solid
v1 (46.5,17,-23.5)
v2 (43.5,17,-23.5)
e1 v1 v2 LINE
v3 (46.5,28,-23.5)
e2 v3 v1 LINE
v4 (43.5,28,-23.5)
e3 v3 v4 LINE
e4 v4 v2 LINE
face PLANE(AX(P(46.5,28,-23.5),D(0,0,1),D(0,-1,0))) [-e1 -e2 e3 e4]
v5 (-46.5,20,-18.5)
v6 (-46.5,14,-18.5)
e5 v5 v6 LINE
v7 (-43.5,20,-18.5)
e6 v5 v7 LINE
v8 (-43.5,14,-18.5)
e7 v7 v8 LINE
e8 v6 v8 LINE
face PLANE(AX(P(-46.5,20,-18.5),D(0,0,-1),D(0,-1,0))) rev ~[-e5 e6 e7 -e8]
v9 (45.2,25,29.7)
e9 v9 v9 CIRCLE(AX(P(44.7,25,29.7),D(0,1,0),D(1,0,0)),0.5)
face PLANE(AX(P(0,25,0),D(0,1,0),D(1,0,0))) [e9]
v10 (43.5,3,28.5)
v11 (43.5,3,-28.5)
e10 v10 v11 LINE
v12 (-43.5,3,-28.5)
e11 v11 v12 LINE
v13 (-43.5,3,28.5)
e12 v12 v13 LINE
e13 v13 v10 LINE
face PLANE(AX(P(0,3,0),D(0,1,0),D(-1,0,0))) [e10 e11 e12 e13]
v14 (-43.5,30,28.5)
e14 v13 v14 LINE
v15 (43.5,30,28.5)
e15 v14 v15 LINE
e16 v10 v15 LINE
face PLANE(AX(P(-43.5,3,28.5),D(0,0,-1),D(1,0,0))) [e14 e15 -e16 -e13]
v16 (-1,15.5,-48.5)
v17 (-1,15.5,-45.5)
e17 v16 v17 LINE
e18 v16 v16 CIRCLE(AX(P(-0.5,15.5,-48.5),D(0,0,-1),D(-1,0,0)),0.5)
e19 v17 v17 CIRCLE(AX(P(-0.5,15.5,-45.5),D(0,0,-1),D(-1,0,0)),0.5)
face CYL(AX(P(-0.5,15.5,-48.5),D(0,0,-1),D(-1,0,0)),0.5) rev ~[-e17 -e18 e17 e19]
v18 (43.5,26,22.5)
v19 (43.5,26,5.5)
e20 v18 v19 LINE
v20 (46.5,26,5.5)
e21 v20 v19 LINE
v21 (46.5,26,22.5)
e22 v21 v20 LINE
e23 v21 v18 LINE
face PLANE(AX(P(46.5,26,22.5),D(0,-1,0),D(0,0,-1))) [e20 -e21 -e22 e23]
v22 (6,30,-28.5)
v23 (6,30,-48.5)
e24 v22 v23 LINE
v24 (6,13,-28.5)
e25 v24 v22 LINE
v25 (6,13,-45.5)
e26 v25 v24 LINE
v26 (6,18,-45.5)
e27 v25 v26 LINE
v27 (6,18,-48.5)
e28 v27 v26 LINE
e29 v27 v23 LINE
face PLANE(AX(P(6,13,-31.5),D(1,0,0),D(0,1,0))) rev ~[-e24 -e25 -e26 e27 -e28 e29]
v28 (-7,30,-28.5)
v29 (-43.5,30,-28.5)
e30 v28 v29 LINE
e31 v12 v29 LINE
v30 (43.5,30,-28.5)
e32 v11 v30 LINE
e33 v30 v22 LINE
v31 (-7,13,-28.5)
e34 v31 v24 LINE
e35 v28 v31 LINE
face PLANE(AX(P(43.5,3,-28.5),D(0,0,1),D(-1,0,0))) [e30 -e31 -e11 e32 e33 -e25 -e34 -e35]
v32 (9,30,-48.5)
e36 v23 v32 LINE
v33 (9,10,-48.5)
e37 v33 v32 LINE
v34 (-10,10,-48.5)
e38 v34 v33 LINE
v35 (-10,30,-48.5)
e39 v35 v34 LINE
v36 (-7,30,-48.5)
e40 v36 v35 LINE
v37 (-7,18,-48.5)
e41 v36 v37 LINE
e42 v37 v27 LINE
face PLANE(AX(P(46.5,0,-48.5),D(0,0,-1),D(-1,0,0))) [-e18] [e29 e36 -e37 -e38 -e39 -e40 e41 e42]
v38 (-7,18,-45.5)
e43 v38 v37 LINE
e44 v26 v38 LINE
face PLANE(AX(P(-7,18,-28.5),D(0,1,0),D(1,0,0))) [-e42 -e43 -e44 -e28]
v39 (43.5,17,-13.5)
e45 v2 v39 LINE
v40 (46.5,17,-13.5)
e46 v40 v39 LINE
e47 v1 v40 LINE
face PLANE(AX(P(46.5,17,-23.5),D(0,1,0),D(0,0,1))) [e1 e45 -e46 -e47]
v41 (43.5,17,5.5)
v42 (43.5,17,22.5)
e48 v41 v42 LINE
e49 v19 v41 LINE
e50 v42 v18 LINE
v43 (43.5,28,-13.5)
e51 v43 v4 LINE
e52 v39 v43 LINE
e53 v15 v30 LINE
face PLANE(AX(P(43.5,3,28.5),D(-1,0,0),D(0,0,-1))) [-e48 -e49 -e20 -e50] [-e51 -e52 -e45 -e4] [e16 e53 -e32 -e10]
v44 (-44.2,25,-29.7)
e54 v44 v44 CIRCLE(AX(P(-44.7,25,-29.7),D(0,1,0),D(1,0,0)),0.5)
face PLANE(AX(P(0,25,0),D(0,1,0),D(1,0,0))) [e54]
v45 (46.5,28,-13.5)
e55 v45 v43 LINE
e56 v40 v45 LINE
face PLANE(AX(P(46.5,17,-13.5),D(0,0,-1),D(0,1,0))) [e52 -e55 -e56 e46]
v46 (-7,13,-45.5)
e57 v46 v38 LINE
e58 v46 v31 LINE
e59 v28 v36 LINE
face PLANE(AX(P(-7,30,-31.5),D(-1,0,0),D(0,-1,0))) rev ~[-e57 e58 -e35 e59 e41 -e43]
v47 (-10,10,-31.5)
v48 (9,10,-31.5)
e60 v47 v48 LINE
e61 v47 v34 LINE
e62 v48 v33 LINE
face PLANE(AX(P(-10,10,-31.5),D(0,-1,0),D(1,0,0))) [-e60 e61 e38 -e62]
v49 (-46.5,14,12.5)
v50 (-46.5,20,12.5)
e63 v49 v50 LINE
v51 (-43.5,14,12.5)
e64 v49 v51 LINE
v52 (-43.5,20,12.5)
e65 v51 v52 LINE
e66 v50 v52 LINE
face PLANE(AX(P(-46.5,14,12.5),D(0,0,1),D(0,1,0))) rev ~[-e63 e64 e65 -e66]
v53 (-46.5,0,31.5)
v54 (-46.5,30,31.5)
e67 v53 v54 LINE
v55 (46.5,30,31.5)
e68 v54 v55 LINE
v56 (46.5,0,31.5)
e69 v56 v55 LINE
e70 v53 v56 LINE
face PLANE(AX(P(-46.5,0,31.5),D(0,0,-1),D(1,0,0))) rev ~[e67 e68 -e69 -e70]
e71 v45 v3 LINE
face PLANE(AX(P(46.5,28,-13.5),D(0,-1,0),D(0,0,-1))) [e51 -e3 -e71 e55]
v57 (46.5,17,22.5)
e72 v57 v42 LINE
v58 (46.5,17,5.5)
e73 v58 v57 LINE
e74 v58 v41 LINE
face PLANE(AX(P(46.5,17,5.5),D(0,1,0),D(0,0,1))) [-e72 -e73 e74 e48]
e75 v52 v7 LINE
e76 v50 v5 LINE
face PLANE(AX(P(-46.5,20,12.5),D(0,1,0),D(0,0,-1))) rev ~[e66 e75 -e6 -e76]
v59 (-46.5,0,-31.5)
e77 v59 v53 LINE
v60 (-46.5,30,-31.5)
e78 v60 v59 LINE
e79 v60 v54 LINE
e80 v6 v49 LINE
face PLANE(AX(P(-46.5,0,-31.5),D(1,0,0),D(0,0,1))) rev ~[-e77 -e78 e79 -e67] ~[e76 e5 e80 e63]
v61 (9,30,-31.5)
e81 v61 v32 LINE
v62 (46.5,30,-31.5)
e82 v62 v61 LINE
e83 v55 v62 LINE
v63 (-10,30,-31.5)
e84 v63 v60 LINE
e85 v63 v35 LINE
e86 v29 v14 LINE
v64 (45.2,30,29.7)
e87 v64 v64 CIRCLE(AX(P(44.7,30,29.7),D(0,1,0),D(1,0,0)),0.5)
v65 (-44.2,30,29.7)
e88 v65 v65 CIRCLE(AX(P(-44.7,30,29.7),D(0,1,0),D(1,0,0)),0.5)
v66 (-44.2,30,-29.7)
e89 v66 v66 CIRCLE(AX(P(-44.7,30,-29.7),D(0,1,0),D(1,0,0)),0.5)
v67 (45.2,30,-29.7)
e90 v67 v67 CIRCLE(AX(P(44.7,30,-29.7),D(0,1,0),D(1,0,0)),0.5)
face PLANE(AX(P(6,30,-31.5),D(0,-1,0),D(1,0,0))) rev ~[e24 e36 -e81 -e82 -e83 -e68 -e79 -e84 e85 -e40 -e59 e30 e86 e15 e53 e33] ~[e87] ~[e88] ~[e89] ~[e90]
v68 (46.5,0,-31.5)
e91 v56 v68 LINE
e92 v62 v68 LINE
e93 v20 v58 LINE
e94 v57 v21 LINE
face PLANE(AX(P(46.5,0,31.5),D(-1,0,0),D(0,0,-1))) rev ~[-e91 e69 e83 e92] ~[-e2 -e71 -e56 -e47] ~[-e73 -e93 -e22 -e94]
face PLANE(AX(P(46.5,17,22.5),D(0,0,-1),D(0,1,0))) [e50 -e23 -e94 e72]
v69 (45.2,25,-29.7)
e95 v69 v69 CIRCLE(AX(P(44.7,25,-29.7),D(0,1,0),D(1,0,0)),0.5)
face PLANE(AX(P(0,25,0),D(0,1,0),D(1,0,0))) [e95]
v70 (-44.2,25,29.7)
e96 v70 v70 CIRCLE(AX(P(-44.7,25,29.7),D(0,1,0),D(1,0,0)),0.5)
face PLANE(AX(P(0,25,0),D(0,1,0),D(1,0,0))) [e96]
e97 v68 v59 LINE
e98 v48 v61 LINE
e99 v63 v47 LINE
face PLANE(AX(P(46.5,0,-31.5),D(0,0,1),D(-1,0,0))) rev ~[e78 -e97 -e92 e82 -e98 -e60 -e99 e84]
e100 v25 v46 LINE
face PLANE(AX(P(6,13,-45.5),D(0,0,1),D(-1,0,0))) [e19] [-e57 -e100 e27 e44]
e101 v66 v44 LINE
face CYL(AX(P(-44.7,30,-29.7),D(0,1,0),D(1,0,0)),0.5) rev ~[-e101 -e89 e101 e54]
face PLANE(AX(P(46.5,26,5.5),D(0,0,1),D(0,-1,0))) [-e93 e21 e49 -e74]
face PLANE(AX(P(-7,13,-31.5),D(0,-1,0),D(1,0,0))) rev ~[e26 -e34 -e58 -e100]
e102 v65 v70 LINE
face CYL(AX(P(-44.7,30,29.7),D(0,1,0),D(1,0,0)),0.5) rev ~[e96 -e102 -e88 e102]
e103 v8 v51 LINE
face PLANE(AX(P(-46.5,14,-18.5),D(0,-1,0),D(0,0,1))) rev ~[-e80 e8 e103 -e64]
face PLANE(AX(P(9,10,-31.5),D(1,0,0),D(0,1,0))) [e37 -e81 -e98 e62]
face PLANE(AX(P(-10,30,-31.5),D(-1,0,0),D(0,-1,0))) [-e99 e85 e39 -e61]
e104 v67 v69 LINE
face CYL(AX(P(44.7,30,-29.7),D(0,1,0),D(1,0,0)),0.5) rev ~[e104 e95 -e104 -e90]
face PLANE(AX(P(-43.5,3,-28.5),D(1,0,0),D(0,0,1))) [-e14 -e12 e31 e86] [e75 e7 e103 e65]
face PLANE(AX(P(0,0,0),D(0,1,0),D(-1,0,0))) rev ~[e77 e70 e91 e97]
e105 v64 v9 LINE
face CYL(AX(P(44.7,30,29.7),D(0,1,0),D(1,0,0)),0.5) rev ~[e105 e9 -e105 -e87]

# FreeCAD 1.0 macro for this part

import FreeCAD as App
import Part
import Sketcher
Q = App.Units.Quantity

doc = App.newDocument("Part")
body = doc.addObject("PartDesign::Body", "Body")

# Sketch on XZ plane
sketch1 = body.newObject("Sketcher::SketchObject", "Sketch")
sketch1.AttachmentSupport = (doc.getObject("XZ_Plane"), [""])
sketch1.MapMode = "FlatFace"
sketch1.addGeometry(Part.LineSegment(App.Vector(-46, -32, 0), App.Vector(-46, 32, 0)), False)
sketch1.addGeometry(Part.LineSegment(App.Vector(-46, 32, 0), App.Vector(46, 32, 0)), False)
sketch1.addGeometry(Part.LineSegment(App.Vector(46, 32, 0), App.Vector(46, -32, 0)), False)
sketch1.addGeometry(Part.LineSegment(App.Vector(46, -32, 0), App.Vector(-46, -32, 0)), False)
sketch1.addConstraint(Sketcher.Constraint("Coincident", 0, 2, 1, 1))
sketch1.addConstraint(Sketcher.Constraint("Coincident", 1, 2, 2, 1))
sketch1.addConstraint(Sketcher.Constraint("Coincident", 2, 2, 3, 1))
sketch1.addConstraint(Sketcher.Constraint("Coincident", 3, 2, 0, 1))
sketch1.addConstraint(Sketcher.Constraint("Vertical", 0))
sketch1.addConstraint(Sketcher.Constraint("Horizontal", 1))
sketch1.addConstraint(Sketcher.Constraint("Vertical", 2))
sketch1.addConstraint(Sketcher.Constraint("Horizontal", 3))
sketch1.addConstraint(Sketcher.Constraint("Symmetric", 0, 2, 2, 2, -1, 1))
sketch1.addConstraint(Sketcher.Constraint("DistanceX", 1, 1, 1, 2, Q("93 mm")))
sketch1.addConstraint(Sketcher.Constraint("DistanceY", 0, 1, 0, 2, Q("63 mm")))
pad1 = body.newObject("PartDesign::Pad", "Pad")
pad1.Profile = sketch1
pad1.Length = 3
pad1.Reversed = True

# Sketch on XZ plane
sketch2 = body.newObject("Sketcher::SketchObject", "Sketch001")
sketch2.AttachmentSupport = (doc.getObject("XZ_Plane"), [""])
sketch2.MapMode = "FlatFace"
sketch2.AttachmentOffset = App.Placement(App.Vector(0, 0, -3), App.Rotation())
sketch2.addGeometry(Part.LineSegment(App.Vector(-46, 32, 0), App.Vector(46, 32, 0)), False)
sketch2.addGeometry(Part.LineSegment(App.Vector(46, 32, 0), App.Vector(46, -32, 0)), False)
sketch2.addGeometry(Part.LineSegment(App.Vector(46, -32, 0), App.Vector(-46, -32, 0)), False)
sketch2.addGeometry(Part.LineSegment(App.Vector(-46, -32, 0), App.Vector(-46, 32, 0)), False)
sketch2.addGeometry(Part.LineSegment(App.Vector(44, 28, 0), App.Vector(-44, 28, 0)), False)
sketch2.addGeometry(Part.LineSegment(App.Vector(-44, 28, 0), App.Vector(-44, -28, 0)), False)
sketch2.addGeometry(Part.LineSegment(App.Vector(-44, -28, 0), App.Vector(44, -28, 0)), False)
sketch2.addGeometry(Part.LineSegment(App.Vector(44, -28, 0), App.Vector(44, 28, 0)), False)
sketch2.addConstraint(Sketcher.Constraint("Coincident", 0, 2, 1, 1))
sketch2.addConstraint(Sketcher.Constraint("Coincident", 1, 2, 2, 1))
sketch2.addConstraint(Sketcher.Constraint("Coincident", 2, 2, 3, 1))
sketch2.addConstraint(Sketcher.Constraint("Coincident", 3, 2, 0, 1))
sketch2.addConstraint(Sketcher.Constraint("Coincident", 4, 2, 5, 1))
sketch2.addConstraint(Sketcher.Constraint("Coincident", 5, 2, 6, 1))
sketch2.addConstraint(Sketcher.Constraint("Coincident", 6, 2, 7, 1))
sketch2.addConstraint(Sketcher.Constraint("Coincident", 7, 2, 4, 1))
sketch2.addConstraint(Sketcher.Constraint("Horizontal", 0))
sketch2.addConstraint(Sketcher.Constraint("Vertical", 1))
sketch2.addConstraint(Sketcher.Constraint("Horizontal", 2))
sketch2.addConstraint(Sketcher.Constraint("Vertical", 3))
sketch2.addConstraint(Sketcher.Constraint("Horizontal", 4))
sketch2.addConstraint(Sketcher.Constraint("Vertical", 5))
sketch2.addConstraint(Sketcher.Constraint("Horizontal", 6))
sketch2.addConstraint(Sketcher.Constraint("Vertical", 7))
sketch2.addConstraint(Sketcher.Constraint("Symmetric", 0, 2, 2, 2, -1, 1))
sketch2.addConstraint(Sketcher.Constraint("Symmetric", 4, 2, 6, 2, -1, 1))
sketch2.addConstraint(Sketcher.Constraint("DistanceX", 4, 2, 4, 1, Q("87 mm")))
sketch2.addConstraint(Sketcher.Constraint("DistanceY", 5, 2, 5, 1, Q("57 mm")))
sketch2.addConstraint(Sketcher.Constraint("DistanceX", 0, 1, 0, 2, Q("93 mm")))
sketch2.addConstraint(Sketcher.Constraint("DistanceY", 1, 2, 1, 1, Q("63 mm")))
pad2 = body.newObject("PartDesign::Pad", "Pad001")
pad2.Profile = sketch2
pad2.Length = 27
pad2.Reversed = True

# Sketch on XZ plane
sketch3 = body.newObject("Sketcher::SketchObject", "Sketch002")
sketch3.AttachmentSupport = (doc.getObject("XZ_Plane"), [""])
sketch3.MapMode = "FlatFace"
sketch3.AttachmentOffset = App.Placement(App.Vector(0, 0, -30), App.Rotation())
sketch3.addGeometry(Part.Circle(App.Vector(-44.7, -29.7, 0), App.Vector(0, 0, 1), 0.5), False)
sketch3.addGeometry(Part.Circle(App.Vector(-44.7, 29.7, 0), App.Vector(0, 0, 1), 0.5), False)
sketch3.addGeometry(Part.Circle(App.Vector(44.7, 29.7, 0), App.Vector(0, 0, 1), 0.5), False)
sketch3.addGeometry(Part.Circle(App.Vector(44.7, -29.7, 0), App.Vector(0, 0, 1), 0.5), False)
sketch3.addConstraint(Sketcher.Constraint("Equal", 0, 1))
sketch3.addConstraint(Sketcher.Constraint("Equal", 1, 2))
sketch3.addConstraint(Sketcher.Constraint("Equal", 2, 3))
sketch3.addConstraint(Sketcher.Constraint("Symmetric", 0, 3, 2, 3, -1, 1))
sketch3.addConstraint(Sketcher.Constraint("Symmetric", 1, 3, 3, 3, -1, 1))
sketch3.addConstraint(Sketcher.Constraint("Symmetric", 1, 3, 2, 3, -2))
sketch3.addConstraint(Sketcher.Constraint("Diameter", 0, Q("1 mm")))
sketch3.addConstraint(Sketcher.Constraint("DistanceX", 0, 3, -1, 1, Q("44.7 mm")))
sketch3.addConstraint(Sketcher.Constraint("DistanceY", 0, 3, -1, 1, Q("29.7 mm")))
pocket1 = body.newObject("PartDesign::Pocket", "Pocket")
pocket1.Profile = sketch3
pocket1.Length = 5
pocket1.Reversed = True

# Sketch on YZ plane
sketch4 = body.newObject("Sketcher::SketchObject", "Sketch003")
sketch4.AttachmentSupport = (doc.getObject("YZ_Plane"), [""])
sketch4.MapMode = "FlatFace"
sketch4.AttachmentOffset = App.Placement(App.Vector(0, 0, -46.5), App.Rotation())
sketch4.addGeometry(Part.LineSegment(App.Vector(20, -18, 0), App.Vector(14, -18, 0)), False)
sketch4.addGeometry(Part.LineSegment(App.Vector(14, -18, 0), App.Vector(14, 12, 0)), False)
sketch4.addGeometry(Part.LineSegment(App.Vector(14, 12, 0), App.Vector(20, 12, 0)), False)
sketch4.addGeometry(Part.LineSegment(App.Vector(20, 12, 0), App.Vector(20, -18, 0)), False)
sketch4.addConstraint(Sketcher.Constraint("Coincident", 0, 2, 1, 1))
sketch4.addConstraint(Sketcher.Constraint("Coincident", 1, 2, 2, 1))
sketch4.addConstraint(Sketcher.Constraint("Coincident", 2, 2, 3, 1))
sketch4.addConstraint(Sketcher.Constraint("Coincident", 3, 2, 0, 1))
sketch4.addConstraint(Sketcher.Constraint("Horizontal", 0))
sketch4.addConstraint(Sketcher.Constraint("Vertical", 1))
sketch4.addConstraint(Sketcher.Constraint("Horizontal", 2))
sketch4.addConstraint(Sketcher.Constraint("Vertical", 3))
sketch4.addConstraint(Sketcher.Constraint("DistanceX", 0, 2, 0, 1, Q("6 mm")))
sketch4.addConstraint(Sketcher.Constraint("DistanceY", 1, 1, 1, 2, Q("31 mm")))
sketch4.addConstraint(Sketcher.Constraint("DistanceX", -1, 1, 0, 2, Q("14 mm")))
sketch4.addConstraint(Sketcher.Constraint("DistanceY", 0, 2, -1, 1, Q("18.5 mm")))
pocket2 = body.newObject("PartDesign::Pocket", "Pocket001")
pocket2.Profile = sketch4
pocket2.Length = 3
pocket2.Reversed = True

# Sketch on YZ plane
sketch5 = body.newObject("Sketcher::SketchObject", "Sketch004")
sketch5.AttachmentSupport = (doc.getObject("YZ_Plane"), [""])
sketch5.MapMode = "FlatFace"
sketch5.AttachmentOffset = App.Placement(App.Vector(0, 0, 46.5), App.Rotation())
sketch5.addGeometry(Part.LineSegment(App.Vector(28, -24, 0), App.Vector(28, -14, 0)), False)
sketch5.addGeometry(Part.LineSegment(App.Vector(28, -14, 0), App.Vector(17, -14, 0)), False)
sketch5.addGeometry(Part.LineSegment(App.Vector(17, -14, 0), App.Vector(17, -24, 0)), False)
sketch5.addGeometry(Part.LineSegment(App.Vector(17, -24, 0), App.Vector(28, -24, 0)), False)
sketch5.addGeometry(Part.LineSegment(App.Vector(26, 6, 0), App.Vector(26, 22, 0)), False)
sketch5.addGeometry(Part.LineSegment(App.Vector(26, 22, 0), App.Vector(17, 22, 0)), False)
sketch5.addGeometry(Part.LineSegment(App.Vector(17, 22, 0), App.Vector(17, 6, 0)), False)
sketch5.addGeometry(Part.LineSegment(App.Vector(17, 6, 0), App.Vector(26, 6, 0)), False)
sketch5.addConstraint(Sketcher.Constraint("Coincident", 0, 2, 1, 1))
sketch5.addConstraint(Sketcher.Constraint("Coincident", 1, 2, 2, 1))
sketch5.addConstraint(Sketcher.Constraint("Coincident", 2, 2, 3, 1))
sketch5.addConstraint(Sketcher.Constraint("Coincident", 3, 2, 0, 1))
sketch5.addConstraint(Sketcher.Constraint("Coincident", 4, 2, 5, 1))
sketch5.addConstraint(Sketcher.Constraint("Coincident", 5, 2, 6, 1))
sketch5.addConstraint(Sketcher.Constraint("Coincident", 6, 2, 7, 1))
sketch5.addConstraint(Sketcher.Constraint("Coincident", 7, 2, 4, 1))
sketch5.addConstraint(Sketcher.Constraint("Vertical", 0))
sketch5.addConstraint(Sketcher.Constraint("Horizontal", 1))
sketch5.addConstraint(Sketcher.Constraint("Vertical", 2))
sketch5.addConstraint(Sketcher.Constraint("Horizontal", 3))
sketch5.addConstraint(Sketcher.Constraint("Vertical", 4))
sketch5.addConstraint(Sketcher.Constraint("Horizontal", 5))
sketch5.addConstraint(Sketcher.Constraint("Vertical", 6))
sketch5.addConstraint(Sketcher.Constraint("Horizontal", 7))
sketch5.addConstraint(Sketcher.Constraint("Vertical", 2, 2, 5, 2))
sketch5.addConstraint(Sketcher.Constraint("DistanceX", 1, 2, 1, 1, Q("11 mm")))
sketch5.addConstraint(Sketcher.Constraint("DistanceX", 5, 2, 5, 1, Q("9 mm")))
sketch5.addConstraint(Sketcher.Constraint("DistanceY", 0, 1, 0, 2, Q("10 mm")))
sketch5.addConstraint(Sketcher.Constraint("DistanceY", 4, 1, 4, 2, Q("17 mm")))
sketch5.addConstraint(Sketcher.Constraint("DistanceX", -1, 1, 1, 2, Q("17 mm")))
sketch5.addConstraint(Sketcher.Constraint("DistanceY", 0, 2, 4, 2, Q("36 mm")))
sketch5.addConstraint(Sketcher.Constraint("DistanceY", 0, 2, -1, 1, Q("13.5 mm")))
pocket3 = body.newObject("PartDesign::Pocket", "Pocket002")
pocket3.Profile = sketch5
pocket3.Length = 3

# Sketch on XY plane
sketch6 = body.newObject("Sketcher::SketchObject", "Sketch005")
sketch6.AttachmentSupport = (doc.getObject("XY_Plane"), [""])
sketch6.MapMode = "FlatFace"
sketch6.AttachmentOffset = App.Placement(App.Vector(0, 0, -31.5), App.Rotation())
sketch6.addGeometry(Part.LineSegment(App.Vector(-7, 41, 0), App.Vector(6, 41, 0)), False)
sketch6.addGeometry(Part.LineSegment(App.Vector(6, 41, 0), App.Vector(6, 13, 0)), False)
sketch6.addGeometry(Part.LineSegment(App.Vector(6, 13, 0), App.Vector(-7, 13, 0)), False)
sketch6.addGeometry(Part.LineSegment(App.Vector(-7, 13, 0), App.Vector(-7, 41, 0)), False)
sketch6.addConstraint(Sketcher.Constraint("Coincident", 0, 2, 1, 1))
sketch6.addConstraint(Sketcher.Constraint("Coincident", 1, 2, 2, 1))
sketch6.addConstraint(Sketcher.Constraint("Coincident", 2, 2, 3, 1))
sketch6.addConstraint(Sketcher.Constraint("Coincident", 3, 2, 0, 1))
sketch6.addConstraint(Sketcher.Constraint("Horizontal", 0))
sketch6.addConstraint(Sketcher.Constraint("Vertical", 1))
sketch6.addConstraint(Sketcher.Constraint("Horizontal", 2))
sketch6.addConstraint(Sketcher.Constraint("Vertical", 3))
sketch6.addConstraint(Sketcher.Constraint("DistanceX", 0, 1, 0, 2, Q("13 mm")))
sketch6.addConstraint(Sketcher.Constraint("DistanceY", 1, 2, 1, 1, Q("28 mm")))
sketch6.addConstraint(Sketcher.Constraint("DistanceY", -1, 1, 1, 2, Q("13 mm")))
sketch6.addConstraint(Sketcher.Constraint("DistanceX", -1, 1, 0, 2, Q("6 mm")))
pocket4 = body.newObject("PartDesign::Pocket", "Pocket003")
pocket4.Profile = sketch6
pocket4.Length = 3
pocket4.Reversed = True

# Sketch on XY plane
sketch7 = body.newObject("Sketcher::SketchObject", "Sketch006")
sketch7.AttachmentSupport = (doc.getObject("XY_Plane"), [""])
sketch7.MapMode = "FlatFace"
sketch7.AttachmentOffset = App.Placement(App.Vector(0, 0, -31.5), App.Rotation())
sketch7.addGeometry(Part.LineSegment(App.Vector(6, 13, 0), App.Vector(6, 30, 0)), False)
sketch7.addGeometry(Part.LineSegment(App.Vector(6, 30, 0), App.Vector(9, 30, 0)), False)
sketch7.addGeometry(Part.LineSegment(App.Vector(9, 30, 0), App.Vector(9, 10, 0)), False)
sketch7.addGeometry(Part.LineSegment(App.Vector(9, 10, 0), App.Vector(-10, 10, 0)), False)
sketch7.addGeometry(Part.LineSegment(App.Vector(-10, 10, 0), App.Vector(-10, 30, 0)), False)
sketch7.addGeometry(Part.LineSegment(App.Vector(-10, 30, 0), App.Vector(-7, 30, 0)), False)
sketch7.addGeometry(Part.LineSegment(App.Vector(-7, 30, 0), App.Vector(-7, 13, 0)), False)
sketch7.addGeometry(Part.LineSegment(App.Vector(-7, 13, 0), App.Vector(6, 13, 0)), False)
sketch7.addConstraint(Sketcher.Constraint("Coincident", 0, 2, 1, 1))
sketch7.addConstraint(Sketcher.Constraint("Coincident", 1, 2, 2, 1))
sketch7.addConstraint(Sketcher.Constraint("Coincident", 2, 2, 3, 1))
sketch7.addConstraint(Sketcher.Constraint("Coincident", 3, 2, 4, 1))
sketch7.addConstraint(Sketcher.Constraint("Coincident", 4, 2, 5, 1))
sketch7.addConstraint(Sketcher.Constraint("Coincident", 5, 2, 6, 1))
sketch7.addConstraint(Sketcher.Constraint("Coincident", 6, 2, 7, 1))
sketch7.addConstraint(Sketcher.Constraint("Coincident", 7, 2, 0, 1))
sketch7.addConstraint(Sketcher.Constraint("Vertical", 0))
sketch7.addConstraint(Sketcher.Constraint("Horizontal", 1))
sketch7.addConstraint(Sketcher.Constraint("Vertical", 2))
sketch7.addConstraint(Sketcher.Constraint("Horizontal", 3))
sketch7.addConstraint(Sketcher.Constraint("Vertical", 4))
sketch7.addConstraint(Sketcher.Constraint("Horizontal", 5))
sketch7.addConstraint(Sketcher.Constraint("Vertical", 6))
sketch7.addConstraint(Sketcher.Constraint("Horizontal", 7))
sketch7.addConstraint(Sketcher.Constraint("Horizontal", 1, 2, 4, 2))
sketch7.addConstraint(Sketcher.Constraint("Equal", 1, 5))
sketch7.addConstraint(Sketcher.Constraint("DistanceX", 1, 1, 1, 2, Q("3 mm")))
sketch7.addConstraint(Sketcher.Constraint("DistanceY", 3, 2, 6, 2, Q("3 mm")))
sketch7.addConstraint(Sketcher.Constraint("DistanceX", 3, 2, 3, 1, Q("19 mm")))
sketch7.addConstraint(Sketcher.Constraint("DistanceY", 0, 1, 0, 2, Q("17 mm")))
sketch7.addConstraint(Sketcher.Constraint("DistanceX", -1, 1, 0, 2, Q("6 mm")))
sketch7.addConstraint(Sketcher.Constraint("DistanceY", -1, 1, 0, 2, Q("30 mm")))
pad3 = body.newObject("PartDesign::Pad", "Pad002")
pad3.Profile = sketch7
pad3.Length = 17
pad3.Reversed = True

# Sketch on XZ plane
sketch8 = body.newObject("Sketcher::SketchObject", "Sketch007")
sketch8.AttachmentSupport = (doc.getObject("XZ_Plane"), [""])
sketch8.MapMode = "FlatFace"
sketch8.AttachmentOffset = App.Placement(App.Vector(0, 0, -13), App.Rotation())
sketch8.addGeometry(Part.LineSegment(App.Vector(6, -45.5, 0), App.Vector(6, -48.5, 0)), False)
sketch8.addGeometry(Part.LineSegment(App.Vector(6, -48.5, 0), App.Vector(-7, -48.5, 0)), False)
sketch8.addGeometry(Part.LineSegment(App.Vector(-7, -48.5, 0), App.Vector(-7, -45.5, 0)), False)
sketch8.addGeometry(Part.LineSegment(App.Vector(-7, -45.5, 0), App.Vector(6, -45.5, 0)), False)
sketch8.addConstraint(Sketcher.Constraint("Coincident", 0, 2, 1, 1))
sketch8.addConstraint(Sketcher.Constraint("Coincident", 1, 2, 2, 1))
sketch8.addConstraint(Sketcher.Constraint("Coincident", 2, 2, 3, 1))
sketch8.addConstraint(Sketcher.Constraint("Coincident", 3, 2, 0, 1))
sketch8.addConstraint(Sketcher.Constraint("Vertical", 0))
sketch8.addConstraint(Sketcher.Constraint("Horizontal", 1))
sketch8.addConstraint(Sketcher.Constraint("Vertical", 2))
sketch8.addConstraint(Sketcher.Constraint("Horizontal", 3))
sketch8.addConstraint(Sketcher.Constraint("DistanceY", 0, 2, 0, 1, Q("3 mm")))
sketch8.addConstraint(Sketcher.Constraint("DistanceX", 1, 2, 1, 1, Q("13 mm")))
sketch8.addConstraint(Sketcher.Constraint("DistanceX", -1, 1, 0, 2, Q("6 mm")))
sketch8.addConstraint(Sketcher.Constraint("DistanceY", 0, 2, -1, 1, Q("48.5 mm")))
pad4 = body.newObject("PartDesign::Pad", "Pad003")
pad4.Profile = sketch8
pad4.Length = 5
pad4.Reversed = True

# Sketch on XY plane
sketch9 = body.newObject("Sketcher::SketchObject", "Sketch008")
sketch9.AttachmentSupport = (doc.getObject("XY_Plane"), [""])
sketch9.MapMode = "FlatFace"
sketch9.AttachmentOffset = App.Placement(App.Vector(0, 0, -48.5), App.Rotation())
sketch9.addGeometry(Part.Circle(App.Vector(-0.5, 15.5, 0), App.Vector(0, 0, 1), 0.5), False)
sketch9.addConstraint(Sketcher.Constraint("Diameter", 0, Q("1 mm")))
sketch9.addConstraint(Sketcher.Constraint("DistanceX", 0, 3, -1, 1, Q("0.5 mm")))
sketch9.addConstraint(Sketcher.Constraint("DistanceY", -1, 1, 0, 3, Q("15.5 mm")))
pocket5 = body.newObject("PartDesign::Pocket", "Pocket004")
pocket5.Profile = sketch9
pocket5.Length = 5
pocket5.Reversed = True

doc.recompute()
